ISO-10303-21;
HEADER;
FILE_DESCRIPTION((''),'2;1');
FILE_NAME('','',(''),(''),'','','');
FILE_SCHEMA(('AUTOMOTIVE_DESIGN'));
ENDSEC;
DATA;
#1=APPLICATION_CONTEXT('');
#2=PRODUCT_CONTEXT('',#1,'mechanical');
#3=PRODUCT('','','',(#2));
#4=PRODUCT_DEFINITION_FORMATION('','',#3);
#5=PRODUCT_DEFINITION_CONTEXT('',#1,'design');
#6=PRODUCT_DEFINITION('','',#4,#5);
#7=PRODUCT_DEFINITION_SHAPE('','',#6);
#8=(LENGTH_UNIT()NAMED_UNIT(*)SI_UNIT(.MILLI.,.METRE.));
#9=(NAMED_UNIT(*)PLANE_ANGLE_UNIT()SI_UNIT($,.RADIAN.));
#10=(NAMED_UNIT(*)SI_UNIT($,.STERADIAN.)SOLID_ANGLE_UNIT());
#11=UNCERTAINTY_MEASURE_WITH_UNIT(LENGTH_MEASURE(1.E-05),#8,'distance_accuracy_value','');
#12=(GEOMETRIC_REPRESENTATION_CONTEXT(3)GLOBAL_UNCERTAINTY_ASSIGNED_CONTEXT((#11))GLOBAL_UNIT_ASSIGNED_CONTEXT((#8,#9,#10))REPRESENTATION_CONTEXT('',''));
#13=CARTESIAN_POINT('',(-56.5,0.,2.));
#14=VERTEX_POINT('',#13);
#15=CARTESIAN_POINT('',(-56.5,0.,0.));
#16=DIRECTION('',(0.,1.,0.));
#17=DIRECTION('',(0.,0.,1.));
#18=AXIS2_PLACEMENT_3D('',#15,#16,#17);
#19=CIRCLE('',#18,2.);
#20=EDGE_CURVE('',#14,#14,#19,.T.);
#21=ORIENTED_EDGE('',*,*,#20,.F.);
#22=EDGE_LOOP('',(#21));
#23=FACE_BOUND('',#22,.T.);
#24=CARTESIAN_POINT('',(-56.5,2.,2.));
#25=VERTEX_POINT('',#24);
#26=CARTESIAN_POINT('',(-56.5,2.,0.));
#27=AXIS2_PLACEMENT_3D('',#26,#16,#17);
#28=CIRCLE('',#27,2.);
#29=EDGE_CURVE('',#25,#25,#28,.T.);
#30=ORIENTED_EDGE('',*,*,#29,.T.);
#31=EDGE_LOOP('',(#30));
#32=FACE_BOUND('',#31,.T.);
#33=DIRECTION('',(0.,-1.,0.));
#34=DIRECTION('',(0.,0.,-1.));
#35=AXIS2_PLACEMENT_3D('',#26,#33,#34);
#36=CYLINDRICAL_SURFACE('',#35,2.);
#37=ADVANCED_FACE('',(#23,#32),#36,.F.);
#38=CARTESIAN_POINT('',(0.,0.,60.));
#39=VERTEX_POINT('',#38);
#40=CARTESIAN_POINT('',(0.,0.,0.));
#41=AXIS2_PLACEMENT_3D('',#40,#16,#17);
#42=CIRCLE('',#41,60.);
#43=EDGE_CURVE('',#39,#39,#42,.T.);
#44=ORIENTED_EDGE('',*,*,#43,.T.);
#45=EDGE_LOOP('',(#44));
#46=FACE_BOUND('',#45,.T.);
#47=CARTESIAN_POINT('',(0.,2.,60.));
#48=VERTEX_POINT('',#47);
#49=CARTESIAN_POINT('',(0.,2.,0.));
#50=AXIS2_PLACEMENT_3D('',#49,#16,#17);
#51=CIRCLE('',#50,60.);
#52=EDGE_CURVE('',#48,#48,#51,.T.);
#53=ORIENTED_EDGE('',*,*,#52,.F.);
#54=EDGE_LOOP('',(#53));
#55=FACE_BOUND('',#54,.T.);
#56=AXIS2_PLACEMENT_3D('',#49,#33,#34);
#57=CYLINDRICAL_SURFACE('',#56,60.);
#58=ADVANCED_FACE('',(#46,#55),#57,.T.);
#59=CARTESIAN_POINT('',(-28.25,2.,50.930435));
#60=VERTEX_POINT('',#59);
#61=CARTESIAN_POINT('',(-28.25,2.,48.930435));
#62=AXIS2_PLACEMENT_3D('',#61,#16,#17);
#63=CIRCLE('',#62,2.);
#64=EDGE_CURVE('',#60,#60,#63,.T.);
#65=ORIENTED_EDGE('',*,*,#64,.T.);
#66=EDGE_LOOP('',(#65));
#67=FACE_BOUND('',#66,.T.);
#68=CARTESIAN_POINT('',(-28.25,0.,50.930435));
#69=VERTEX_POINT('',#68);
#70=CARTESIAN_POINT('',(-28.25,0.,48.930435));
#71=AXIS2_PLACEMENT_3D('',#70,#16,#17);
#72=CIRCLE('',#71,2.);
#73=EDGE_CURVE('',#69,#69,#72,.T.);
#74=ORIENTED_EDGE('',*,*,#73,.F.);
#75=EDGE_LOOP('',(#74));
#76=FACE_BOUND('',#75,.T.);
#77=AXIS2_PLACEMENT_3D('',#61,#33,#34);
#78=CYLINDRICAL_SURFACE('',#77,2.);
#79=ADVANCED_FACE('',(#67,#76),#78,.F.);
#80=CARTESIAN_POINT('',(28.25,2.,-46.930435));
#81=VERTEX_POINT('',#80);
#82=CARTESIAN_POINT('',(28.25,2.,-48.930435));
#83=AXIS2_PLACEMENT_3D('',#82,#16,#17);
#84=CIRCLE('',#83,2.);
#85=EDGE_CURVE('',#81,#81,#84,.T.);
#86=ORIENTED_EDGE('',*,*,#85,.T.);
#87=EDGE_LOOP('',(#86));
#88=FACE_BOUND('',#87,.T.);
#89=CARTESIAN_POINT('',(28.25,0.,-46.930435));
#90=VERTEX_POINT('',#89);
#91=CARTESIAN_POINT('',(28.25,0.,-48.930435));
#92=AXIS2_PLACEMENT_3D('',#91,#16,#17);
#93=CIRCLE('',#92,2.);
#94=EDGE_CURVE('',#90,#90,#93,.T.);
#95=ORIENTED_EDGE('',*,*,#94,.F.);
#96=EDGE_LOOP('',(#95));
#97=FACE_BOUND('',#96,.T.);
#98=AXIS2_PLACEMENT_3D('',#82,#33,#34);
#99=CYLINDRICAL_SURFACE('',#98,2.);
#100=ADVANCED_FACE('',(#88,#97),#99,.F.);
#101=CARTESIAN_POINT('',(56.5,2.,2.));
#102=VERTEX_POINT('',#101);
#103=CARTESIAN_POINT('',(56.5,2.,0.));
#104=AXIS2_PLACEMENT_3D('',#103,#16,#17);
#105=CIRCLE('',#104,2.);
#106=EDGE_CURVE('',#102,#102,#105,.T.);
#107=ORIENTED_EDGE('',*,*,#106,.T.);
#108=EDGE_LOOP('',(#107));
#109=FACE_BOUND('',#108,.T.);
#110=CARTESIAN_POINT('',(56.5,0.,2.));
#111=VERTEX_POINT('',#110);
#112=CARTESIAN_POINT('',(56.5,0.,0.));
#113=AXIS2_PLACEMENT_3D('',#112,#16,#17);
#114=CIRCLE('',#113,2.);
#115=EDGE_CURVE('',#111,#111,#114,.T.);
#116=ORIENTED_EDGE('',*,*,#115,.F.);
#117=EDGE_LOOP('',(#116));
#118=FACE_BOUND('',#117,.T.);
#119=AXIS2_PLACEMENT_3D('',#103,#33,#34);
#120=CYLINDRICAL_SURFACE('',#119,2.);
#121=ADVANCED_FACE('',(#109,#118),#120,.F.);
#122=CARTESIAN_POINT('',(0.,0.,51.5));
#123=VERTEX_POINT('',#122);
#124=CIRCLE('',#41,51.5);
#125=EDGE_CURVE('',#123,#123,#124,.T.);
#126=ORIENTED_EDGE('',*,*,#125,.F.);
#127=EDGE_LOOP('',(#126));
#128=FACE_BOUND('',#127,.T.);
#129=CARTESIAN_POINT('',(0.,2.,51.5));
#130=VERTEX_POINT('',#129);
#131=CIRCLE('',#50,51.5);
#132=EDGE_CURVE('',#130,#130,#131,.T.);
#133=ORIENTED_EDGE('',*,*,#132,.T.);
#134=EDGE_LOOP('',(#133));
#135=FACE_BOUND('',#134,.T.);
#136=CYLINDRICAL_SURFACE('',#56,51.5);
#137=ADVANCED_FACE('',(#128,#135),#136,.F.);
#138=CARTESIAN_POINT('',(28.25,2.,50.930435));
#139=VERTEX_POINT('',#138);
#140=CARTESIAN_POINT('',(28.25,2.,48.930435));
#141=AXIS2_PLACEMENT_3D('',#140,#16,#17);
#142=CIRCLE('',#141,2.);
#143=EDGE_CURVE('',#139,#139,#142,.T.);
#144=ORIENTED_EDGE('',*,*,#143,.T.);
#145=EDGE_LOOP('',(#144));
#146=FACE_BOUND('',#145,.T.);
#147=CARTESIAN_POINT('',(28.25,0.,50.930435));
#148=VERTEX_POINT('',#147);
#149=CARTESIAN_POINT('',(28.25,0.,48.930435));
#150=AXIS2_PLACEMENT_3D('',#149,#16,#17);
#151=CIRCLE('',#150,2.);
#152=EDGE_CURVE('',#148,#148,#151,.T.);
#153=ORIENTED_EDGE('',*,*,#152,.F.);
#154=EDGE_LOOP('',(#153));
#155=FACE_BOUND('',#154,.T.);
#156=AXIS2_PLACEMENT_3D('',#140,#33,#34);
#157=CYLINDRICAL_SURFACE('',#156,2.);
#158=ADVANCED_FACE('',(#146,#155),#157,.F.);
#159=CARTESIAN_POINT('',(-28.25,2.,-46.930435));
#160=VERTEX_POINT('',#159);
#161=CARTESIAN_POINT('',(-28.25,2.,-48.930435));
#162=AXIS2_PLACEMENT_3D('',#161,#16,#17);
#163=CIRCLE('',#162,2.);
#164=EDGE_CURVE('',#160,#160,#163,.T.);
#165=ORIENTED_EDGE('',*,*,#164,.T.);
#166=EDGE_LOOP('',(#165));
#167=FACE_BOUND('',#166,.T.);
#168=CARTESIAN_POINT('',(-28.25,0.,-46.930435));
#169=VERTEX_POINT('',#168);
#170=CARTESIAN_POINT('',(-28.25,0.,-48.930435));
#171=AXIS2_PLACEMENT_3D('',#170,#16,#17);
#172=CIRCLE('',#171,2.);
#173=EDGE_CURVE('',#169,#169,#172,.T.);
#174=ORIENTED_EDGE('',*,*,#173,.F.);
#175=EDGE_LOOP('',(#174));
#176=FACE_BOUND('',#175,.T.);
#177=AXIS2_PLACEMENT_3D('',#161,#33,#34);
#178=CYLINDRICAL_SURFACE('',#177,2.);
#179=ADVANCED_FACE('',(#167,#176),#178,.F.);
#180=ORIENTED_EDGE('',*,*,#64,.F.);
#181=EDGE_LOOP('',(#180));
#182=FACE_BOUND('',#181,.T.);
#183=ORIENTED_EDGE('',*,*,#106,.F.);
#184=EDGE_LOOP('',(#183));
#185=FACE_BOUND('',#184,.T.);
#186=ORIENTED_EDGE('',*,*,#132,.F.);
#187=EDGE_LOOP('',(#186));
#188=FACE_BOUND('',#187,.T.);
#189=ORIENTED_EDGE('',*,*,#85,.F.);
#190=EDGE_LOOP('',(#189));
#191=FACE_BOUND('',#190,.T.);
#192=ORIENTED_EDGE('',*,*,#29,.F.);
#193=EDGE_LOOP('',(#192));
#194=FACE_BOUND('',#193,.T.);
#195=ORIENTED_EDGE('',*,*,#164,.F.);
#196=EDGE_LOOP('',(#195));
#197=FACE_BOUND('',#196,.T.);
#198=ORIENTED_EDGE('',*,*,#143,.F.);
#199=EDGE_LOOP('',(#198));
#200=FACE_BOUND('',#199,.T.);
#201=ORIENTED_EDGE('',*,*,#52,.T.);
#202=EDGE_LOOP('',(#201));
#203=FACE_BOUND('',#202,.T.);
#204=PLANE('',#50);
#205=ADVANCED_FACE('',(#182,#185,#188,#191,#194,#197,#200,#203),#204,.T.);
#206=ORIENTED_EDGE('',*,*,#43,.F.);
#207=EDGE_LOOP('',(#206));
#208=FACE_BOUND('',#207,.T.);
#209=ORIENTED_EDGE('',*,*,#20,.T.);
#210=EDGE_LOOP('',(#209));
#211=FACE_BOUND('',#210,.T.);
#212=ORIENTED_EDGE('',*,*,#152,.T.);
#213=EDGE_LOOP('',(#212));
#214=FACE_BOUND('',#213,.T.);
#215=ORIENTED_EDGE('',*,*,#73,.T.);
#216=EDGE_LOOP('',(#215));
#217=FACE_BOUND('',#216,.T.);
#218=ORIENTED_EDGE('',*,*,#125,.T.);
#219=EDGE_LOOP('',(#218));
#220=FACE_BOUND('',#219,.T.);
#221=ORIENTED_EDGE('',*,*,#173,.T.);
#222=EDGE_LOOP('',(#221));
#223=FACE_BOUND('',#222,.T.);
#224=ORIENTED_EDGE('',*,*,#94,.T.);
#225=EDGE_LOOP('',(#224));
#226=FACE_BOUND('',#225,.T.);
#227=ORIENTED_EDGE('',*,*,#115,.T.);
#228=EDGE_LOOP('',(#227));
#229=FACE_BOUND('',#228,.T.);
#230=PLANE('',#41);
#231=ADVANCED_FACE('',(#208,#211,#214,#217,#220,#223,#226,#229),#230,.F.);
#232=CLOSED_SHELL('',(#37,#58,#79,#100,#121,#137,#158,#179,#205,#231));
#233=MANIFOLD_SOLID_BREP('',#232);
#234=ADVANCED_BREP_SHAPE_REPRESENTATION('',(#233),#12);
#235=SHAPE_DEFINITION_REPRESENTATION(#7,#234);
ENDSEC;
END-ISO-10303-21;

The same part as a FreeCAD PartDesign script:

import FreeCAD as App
import Part
import Sketcher

doc = App.newDocument("Part")
body = doc.addObject("PartDesign::Body", "Body")

# Sketch on XZ plane
sketch1 = body.newObject("Sketcher::SketchObject", "Sketch")
sketch1.AttachmentSupport = (doc.getObject("XZ_Plane"), [""])
sketch1.MapMode = "FlatFace"
sketch1.addGeometry([
    Part.Circle(App.Vector(0, 0, 0), App.Vector(0, 0, 1), 60),  # 0
    Part.Circle(App.Vector(-28.25, -48.930435, 0), App.Vector(0, 0, 1), 2),  # 1
    Part.Circle(App.Vector(-56.5, 0, 0), App.Vector(0, 0, 1), 2),  # 2
    Part.Circle(App.Vector(-28.25, 48.930435, 0), App.Vector(0, 0, 1), 2),  # 3
    Part.Circle(App.Vector(28.25, -48.930435, 0), App.Vector(0, 0, 1), 2),  # 4
    Part.Circle(App.Vector(0, 0, 0), App.Vector(0, 0, 1), 51.5),  # 5
    Part.Circle(App.Vector(56.5, 0, 0), App.Vector(0, 0, 1), 2),  # 6
    Part.Circle(App.Vector(28.25, 48.930435, 0), App.Vector(0, 0, 1), 2),  # 7
], False)
sketch1.addConstraint([
    Sketcher.Constraint("Coincident", 0, 3, -1, 1),
    Sketcher.Constraint("Coincident", 5, 3, -1, 1),
    Sketcher.Constraint("Equal", 1, 2),
    Sketcher.Constraint("Equal", 2, 3),
    Sketcher.Constraint("Equal", 3, 4),
    Sketcher.Constraint("Equal", 4, 6),
    Sketcher.Constraint("Equal", 6, 7),
    Sketcher.Constraint("Symmetric", 3, 3, 4, 3, -1, 1),
    Sketcher.Constraint("Symmetric", 2, 3, 6, 3, -1, 1),
    Sketcher.Constraint("Symmetric", 1, 3, 7, 3, -1, 1),
    Sketcher.Constraint("Symmetric", 1, 3, 4, 3, -2),
    Sketcher.Constraint("PointOnObject", 2, 3, -1),
    Sketcher.Constraint("Diameter", 0, 120.0),
    Sketcher.Constraint("Diameter", 1, 4.0),
    Sketcher.Constraint("Diameter", 5, 103.0),
    Sketcher.Constraint("DistanceX", 2, 3, -1, 1, 56.5),
    Sketcher.Constraint("DistanceX", 1, 3, 4, 3, 56.5),
    Sketcher.Constraint("DistanceY", 1, 3, 3, 3, 97.860871),
])
pad1 = body.newObject("PartDesign::Pad", "Pad")
pad1.Profile = sketch1
pad1.Length = 2
pad1.Reversed = True

doc.recompute()
